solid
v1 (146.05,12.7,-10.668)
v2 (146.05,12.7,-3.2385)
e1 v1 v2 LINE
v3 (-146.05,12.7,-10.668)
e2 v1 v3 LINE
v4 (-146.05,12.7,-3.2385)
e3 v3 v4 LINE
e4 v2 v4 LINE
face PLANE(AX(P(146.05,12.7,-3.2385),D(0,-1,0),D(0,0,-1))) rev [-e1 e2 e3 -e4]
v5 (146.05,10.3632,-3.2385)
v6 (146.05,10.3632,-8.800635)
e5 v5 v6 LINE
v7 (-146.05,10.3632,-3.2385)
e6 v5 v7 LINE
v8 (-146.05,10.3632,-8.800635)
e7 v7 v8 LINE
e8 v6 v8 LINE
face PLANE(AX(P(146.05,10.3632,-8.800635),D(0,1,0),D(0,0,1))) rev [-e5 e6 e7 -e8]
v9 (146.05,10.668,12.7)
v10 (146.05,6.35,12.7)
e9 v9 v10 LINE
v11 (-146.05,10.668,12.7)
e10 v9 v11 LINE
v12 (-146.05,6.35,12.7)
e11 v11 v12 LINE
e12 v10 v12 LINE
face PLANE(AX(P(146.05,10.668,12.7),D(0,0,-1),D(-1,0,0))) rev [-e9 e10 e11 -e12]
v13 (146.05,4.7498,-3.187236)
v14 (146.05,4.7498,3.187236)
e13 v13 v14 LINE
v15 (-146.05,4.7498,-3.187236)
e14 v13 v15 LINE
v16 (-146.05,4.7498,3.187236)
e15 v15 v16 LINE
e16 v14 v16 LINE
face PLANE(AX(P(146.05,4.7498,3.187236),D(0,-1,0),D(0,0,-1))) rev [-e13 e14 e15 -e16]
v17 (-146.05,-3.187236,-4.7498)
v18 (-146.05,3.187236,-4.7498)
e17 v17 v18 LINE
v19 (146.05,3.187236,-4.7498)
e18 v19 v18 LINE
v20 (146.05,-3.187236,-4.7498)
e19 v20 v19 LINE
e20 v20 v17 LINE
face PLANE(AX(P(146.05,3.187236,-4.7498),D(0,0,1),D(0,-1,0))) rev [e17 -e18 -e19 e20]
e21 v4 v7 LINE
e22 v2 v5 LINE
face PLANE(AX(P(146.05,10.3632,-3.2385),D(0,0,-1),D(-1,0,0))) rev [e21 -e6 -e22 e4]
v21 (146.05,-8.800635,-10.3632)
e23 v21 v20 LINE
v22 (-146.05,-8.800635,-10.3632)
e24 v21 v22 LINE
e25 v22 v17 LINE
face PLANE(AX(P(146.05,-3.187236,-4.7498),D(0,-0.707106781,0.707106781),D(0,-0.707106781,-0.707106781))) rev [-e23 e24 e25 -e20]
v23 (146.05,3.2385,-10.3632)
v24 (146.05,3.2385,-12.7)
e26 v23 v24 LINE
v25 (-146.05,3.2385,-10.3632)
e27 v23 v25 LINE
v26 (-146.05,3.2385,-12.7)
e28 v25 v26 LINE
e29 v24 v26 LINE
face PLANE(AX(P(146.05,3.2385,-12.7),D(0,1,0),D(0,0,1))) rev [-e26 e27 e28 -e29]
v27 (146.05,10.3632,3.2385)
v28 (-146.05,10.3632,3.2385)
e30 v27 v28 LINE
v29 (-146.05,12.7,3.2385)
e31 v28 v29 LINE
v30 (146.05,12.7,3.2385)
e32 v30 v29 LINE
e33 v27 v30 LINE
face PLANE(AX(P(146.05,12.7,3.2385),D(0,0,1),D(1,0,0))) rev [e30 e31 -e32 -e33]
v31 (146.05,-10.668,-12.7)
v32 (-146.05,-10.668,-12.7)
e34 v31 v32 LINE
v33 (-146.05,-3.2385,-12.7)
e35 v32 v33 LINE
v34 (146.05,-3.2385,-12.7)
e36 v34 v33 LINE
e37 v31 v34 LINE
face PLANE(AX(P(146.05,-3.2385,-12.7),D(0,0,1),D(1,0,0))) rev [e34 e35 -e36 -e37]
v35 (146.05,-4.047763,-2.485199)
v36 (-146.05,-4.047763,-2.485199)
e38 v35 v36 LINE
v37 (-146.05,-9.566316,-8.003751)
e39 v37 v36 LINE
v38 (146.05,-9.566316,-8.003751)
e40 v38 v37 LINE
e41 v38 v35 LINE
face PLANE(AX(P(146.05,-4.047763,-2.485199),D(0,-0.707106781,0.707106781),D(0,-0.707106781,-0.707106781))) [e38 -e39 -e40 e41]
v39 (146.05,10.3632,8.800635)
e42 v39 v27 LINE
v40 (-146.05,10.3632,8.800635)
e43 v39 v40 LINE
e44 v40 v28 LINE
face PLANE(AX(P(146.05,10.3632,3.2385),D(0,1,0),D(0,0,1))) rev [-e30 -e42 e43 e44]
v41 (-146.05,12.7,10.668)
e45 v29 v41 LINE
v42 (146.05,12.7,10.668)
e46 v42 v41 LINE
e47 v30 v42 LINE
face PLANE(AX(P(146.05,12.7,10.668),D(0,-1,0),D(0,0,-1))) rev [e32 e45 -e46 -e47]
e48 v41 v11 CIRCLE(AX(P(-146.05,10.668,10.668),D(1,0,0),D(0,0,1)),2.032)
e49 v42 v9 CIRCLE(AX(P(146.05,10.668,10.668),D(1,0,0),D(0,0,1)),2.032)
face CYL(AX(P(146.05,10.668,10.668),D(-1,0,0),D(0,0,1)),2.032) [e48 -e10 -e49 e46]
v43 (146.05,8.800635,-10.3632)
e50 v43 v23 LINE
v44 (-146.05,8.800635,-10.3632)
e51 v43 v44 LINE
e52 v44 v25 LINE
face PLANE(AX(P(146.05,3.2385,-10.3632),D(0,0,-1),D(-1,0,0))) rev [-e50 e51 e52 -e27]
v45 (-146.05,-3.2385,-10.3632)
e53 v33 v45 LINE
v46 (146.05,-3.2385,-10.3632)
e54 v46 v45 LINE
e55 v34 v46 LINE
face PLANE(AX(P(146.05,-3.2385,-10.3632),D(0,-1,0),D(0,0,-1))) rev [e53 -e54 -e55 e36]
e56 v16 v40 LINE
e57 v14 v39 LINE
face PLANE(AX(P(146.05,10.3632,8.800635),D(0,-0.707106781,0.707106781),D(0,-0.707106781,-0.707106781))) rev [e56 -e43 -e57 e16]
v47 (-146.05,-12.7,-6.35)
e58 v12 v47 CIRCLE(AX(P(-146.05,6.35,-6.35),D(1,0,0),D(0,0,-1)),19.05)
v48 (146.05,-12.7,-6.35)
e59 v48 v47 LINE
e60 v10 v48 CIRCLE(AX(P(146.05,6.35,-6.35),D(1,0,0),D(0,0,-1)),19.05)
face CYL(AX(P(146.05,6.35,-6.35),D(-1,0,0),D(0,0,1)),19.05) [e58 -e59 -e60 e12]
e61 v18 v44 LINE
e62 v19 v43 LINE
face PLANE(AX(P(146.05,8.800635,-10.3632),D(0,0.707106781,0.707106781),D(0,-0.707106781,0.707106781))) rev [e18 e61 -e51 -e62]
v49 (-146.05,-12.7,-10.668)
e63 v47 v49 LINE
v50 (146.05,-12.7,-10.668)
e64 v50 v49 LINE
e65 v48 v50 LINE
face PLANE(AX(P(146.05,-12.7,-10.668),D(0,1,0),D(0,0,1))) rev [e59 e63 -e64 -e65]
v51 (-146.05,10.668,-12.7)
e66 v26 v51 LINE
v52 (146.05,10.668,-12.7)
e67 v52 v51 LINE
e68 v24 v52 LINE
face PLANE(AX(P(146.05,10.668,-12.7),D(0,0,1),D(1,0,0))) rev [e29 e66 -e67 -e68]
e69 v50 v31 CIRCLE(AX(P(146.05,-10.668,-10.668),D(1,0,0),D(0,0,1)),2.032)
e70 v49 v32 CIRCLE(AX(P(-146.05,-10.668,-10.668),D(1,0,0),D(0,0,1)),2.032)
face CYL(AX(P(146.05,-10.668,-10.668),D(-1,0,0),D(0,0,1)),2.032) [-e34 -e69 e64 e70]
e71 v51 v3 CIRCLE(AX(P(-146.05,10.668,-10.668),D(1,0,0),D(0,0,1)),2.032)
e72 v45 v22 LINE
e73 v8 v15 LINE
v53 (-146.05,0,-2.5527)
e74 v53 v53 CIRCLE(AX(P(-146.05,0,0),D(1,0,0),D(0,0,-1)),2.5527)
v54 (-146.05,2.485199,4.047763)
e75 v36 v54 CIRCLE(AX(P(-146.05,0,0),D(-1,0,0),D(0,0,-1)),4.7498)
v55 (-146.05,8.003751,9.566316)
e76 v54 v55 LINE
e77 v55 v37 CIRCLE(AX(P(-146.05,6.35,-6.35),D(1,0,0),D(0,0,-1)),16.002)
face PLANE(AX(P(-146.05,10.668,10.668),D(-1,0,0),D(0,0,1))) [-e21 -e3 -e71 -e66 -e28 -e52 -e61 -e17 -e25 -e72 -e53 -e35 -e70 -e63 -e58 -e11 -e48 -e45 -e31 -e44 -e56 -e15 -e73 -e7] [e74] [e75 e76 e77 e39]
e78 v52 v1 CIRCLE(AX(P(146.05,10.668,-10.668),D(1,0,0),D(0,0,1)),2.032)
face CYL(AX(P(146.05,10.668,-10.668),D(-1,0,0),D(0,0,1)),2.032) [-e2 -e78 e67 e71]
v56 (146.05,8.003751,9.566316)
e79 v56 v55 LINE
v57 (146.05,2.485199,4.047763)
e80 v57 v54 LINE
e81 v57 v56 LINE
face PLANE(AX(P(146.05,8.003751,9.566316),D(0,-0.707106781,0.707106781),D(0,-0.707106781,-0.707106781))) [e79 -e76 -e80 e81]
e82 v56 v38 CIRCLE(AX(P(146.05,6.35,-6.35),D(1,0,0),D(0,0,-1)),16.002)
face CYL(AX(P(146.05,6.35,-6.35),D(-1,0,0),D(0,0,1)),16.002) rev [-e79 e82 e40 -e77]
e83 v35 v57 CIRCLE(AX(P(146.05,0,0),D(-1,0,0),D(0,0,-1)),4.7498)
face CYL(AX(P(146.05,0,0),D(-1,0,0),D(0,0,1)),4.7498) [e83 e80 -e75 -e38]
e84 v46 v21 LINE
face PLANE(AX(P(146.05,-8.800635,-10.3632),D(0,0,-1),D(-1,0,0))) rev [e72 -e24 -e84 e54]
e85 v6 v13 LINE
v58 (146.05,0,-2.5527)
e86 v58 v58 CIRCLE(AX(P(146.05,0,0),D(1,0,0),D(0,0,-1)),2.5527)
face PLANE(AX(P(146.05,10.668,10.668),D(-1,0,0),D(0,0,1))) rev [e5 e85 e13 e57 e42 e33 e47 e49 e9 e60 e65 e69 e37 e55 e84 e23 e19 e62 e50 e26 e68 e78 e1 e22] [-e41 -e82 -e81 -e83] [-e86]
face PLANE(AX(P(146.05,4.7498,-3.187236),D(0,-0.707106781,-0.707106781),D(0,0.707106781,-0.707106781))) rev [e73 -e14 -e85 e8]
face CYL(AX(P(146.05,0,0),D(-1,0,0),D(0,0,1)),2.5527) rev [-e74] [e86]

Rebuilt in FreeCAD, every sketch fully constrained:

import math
import FreeCAD as App
import Part
import Sketcher

V = App.Vector
Q = App.Units.Quantity

doc = App.newDocument("Part")
body = doc.addObject("PartDesign::Body", "Body")

# Sketch on YZ plane
sketch1 = body.newObject("Sketcher::SketchObject", "Sketch")
sketch1.AttachmentSupport = (doc.getObject("YZ_Plane"), [""])
sketch1.MapMode = "FlatFace"
sketch1.addGeometry([
    Part.LineSegment(V(12.7, 3.2385, 0), V(12.7, 10.668, 0)),  # 0
    Part.ArcOfCircle(Part.Circle(V(10.668, 10.668, 0), V(0, 0, 1), 2.032), math.radians(0), math.radians(90)),  # 1
    Part.LineSegment(V(10.668, 12.7, 0), V(6.35, 12.7, 0)),  # 2
    Part.ArcOfCircle(Part.Circle(V(6.35, -6.35, 0), V(0, 0, 1), 19.05), math.radians(90), math.radians(180)),  # 3
    Part.LineSegment(V(-12.7, -6.35, 0), V(-12.7, -10.668, 0)),  # 4
    Part.ArcOfCircle(Part.Circle(V(-10.668, -10.668, 0), V(0, 0, 1), 2.032), math.radians(-180), math.radians(-90)),  # 5
    Part.LineSegment(V(-10.668, -12.7, 0), V(-3.2385, -12.7, 0)),  # 6
    Part.LineSegment(V(-3.2385, -12.7, 0), V(-3.2385, -10.3632, 0)),  # 7
    Part.LineSegment(V(-3.2385, -10.3632, 0), V(-8.800635, -10.3632, 0)),  # 8
    Part.LineSegment(V(-8.800635, -10.3632, 0), V(-3.187236, -4.7498, 0)),  # 9
    Part.LineSegment(V(-3.187236, -4.7498, 0), V(3.187236, -4.7498, 0)),  # 10
    Part.LineSegment(V(3.187236, -4.7498, 0), V(8.800635, -10.3632, 0)),  # 11
    Part.LineSegment(V(8.800635, -10.3632, 0), V(3.2385, -10.3632, 0)),  # 12
    Part.LineSegment(V(3.2385, -10.3632, 0), V(3.2385, -12.7, 0)),  # 13
    Part.LineSegment(V(3.2385, -12.7, 0), V(10.668, -12.7, 0)),  # 14
    Part.ArcOfCircle(Part.Circle(V(10.668, -10.668, 0), V(0, 0, 1), 2.032), math.radians(-90), math.radians(0)),  # 15
    Part.LineSegment(V(12.7, -10.668, 0), V(12.7, -3.2385, 0)),  # 16
    Part.LineSegment(V(12.7, -3.2385, 0), V(10.3632, -3.2385, 0)),  # 17
    Part.LineSegment(V(10.3632, -3.2385, 0), V(10.3632, -8.800635, 0)),  # 18
    Part.LineSegment(V(10.3632, -8.800635, 0), V(4.7498, -3.187236, 0)),  # 19
    Part.LineSegment(V(4.7498, -3.187236, 0), V(4.7498, 3.187236, 0)),  # 20
    Part.LineSegment(V(4.7498, 3.187236, 0), V(10.3632, 8.800635, 0)),  # 21
    Part.LineSegment(V(10.3632, 8.800635, 0), V(10.3632, 3.2385, 0)),  # 22
    Part.LineSegment(V(10.3632, 3.2385, 0), V(12.7, 3.2385, 0)),  # 23
    Part.Circle(V(0, 0, 0), V(0, 0, 1), 2.5527),  # 24
    Part.LineSegment(V(-4.047763, -2.485199, 0), V(-9.566316, -8.003751, 0)),  # 25
    Part.ArcOfCircle(Part.Circle(V(6.35, -6.35, 0), V(0, 0, 1), 16.002), math.radians(84.068088), math.radians(185.931912)),  # 26
    Part.LineSegment(V(8.003751, 9.566316, 0), V(2.485199, 4.047763, 0)),  # 27
    Part.ArcOfCircle(Part.Circle(V(0, 0, 0), V(0, 0, 1), 4.7498), math.radians(58.45139), math.radians(211.54861)),  # 28
], False)
sketch1.addConstraint([
    Sketcher.Constraint("Tangent", 0, 2, 1, 1),
    Sketcher.Constraint("Tangent", 1, 2, 2, 1),
    Sketcher.Constraint("Tangent", 2, 2, 3, 1),
    Sketcher.Constraint("Tangent", 3, 2, 4, 1),
    Sketcher.Constraint("Tangent", 4, 2, 5, 1),
    Sketcher.Constraint("Tangent", 5, 2, 6, 1),
    Sketcher.Constraint("Coincident", 6, 2, 7, 1),
    Sketcher.Constraint("Coincident", 7, 2, 8, 1),
    Sketcher.Constraint("Coincident", 8, 2, 9, 1),
    Sketcher.Constraint("Coincident", 9, 2, 10, 1),
    Sketcher.Constraint("Coincident", 10, 2, 11, 1),
    Sketcher.Constraint("Coincident", 11, 2, 12, 1),
    Sketcher.Constraint("Coincident", 12, 2, 13, 1),
    Sketcher.Constraint("Coincident", 13, 2, 14, 1),
    Sketcher.Constraint("Tangent", 14, 2, 15, 1),
    Sketcher.Constraint("Tangent", 15, 2, 16, 1),
    Sketcher.Constraint("Coincident", 16, 2, 17, 1),
    Sketcher.Constraint("Coincident", 17, 2, 18, 1),
    Sketcher.Constraint("Coincident", 18, 2, 19, 1),
    Sketcher.Constraint("Coincident", 19, 2, 20, 1),
    Sketcher.Constraint("Coincident", 20, 2, 21, 1),
    Sketcher.Constraint("Coincident", 21, 2, 22, 1),
    Sketcher.Constraint("Coincident", 22, 2, 23, 1),
    Sketcher.Constraint("Coincident", 23, 2, 0, 1),
    Sketcher.Constraint("Coincident", 25, 2, 26, 2),
    Sketcher.Constraint("Coincident", 26, 1, 27, 1),
    Sketcher.Constraint("Coincident", 27, 2, 28, 1),
    Sketcher.Constraint("Coincident", 28, 2, 25, 1),
    Sketcher.Constraint("Vertical", 0),
    Sketcher.Constraint("Horizontal", 2),
    Sketcher.Constraint("Vertical", 4),
    Sketcher.Constraint("Horizontal", 6),
    Sketcher.Constraint("Vertical", 7),
    Sketcher.Constraint("Horizontal", 8),
    Sketcher.Constraint("Horizontal", 10),
    Sketcher.Constraint("Horizontal", 12),
    Sketcher.Constraint("Vertical", 13),
    Sketcher.Constraint("Horizontal", 14),
    Sketcher.Constraint("Vertical", 16),
    Sketcher.Constraint("Horizontal", 17),
    Sketcher.Constraint("Vertical", 18),
    Sketcher.Constraint("Vertical", 20),
    Sketcher.Constraint("Vertical", 22),
    Sketcher.Constraint("Horizontal", 23),
    Sketcher.Constraint("Coincident", 24, 3, -1, 1),
    Sketcher.Constraint("Coincident", 28, 3, -1, 1),
    Sketcher.Constraint("Coincident", 26, 3, 3, 3),
    Sketcher.Constraint("Equal", 1, 5),
    Sketcher.Constraint("Equal", 5, 15),
    Sketcher.Constraint("Symmetric", 1, 3, 5, 3, -1, 1),
    Sketcher.Constraint("Symmetric", 5, 3, 15, 3, -2),
    Sketcher.Constraint("Symmetric", 8, 2, 11, 2, -2),
    Sketcher.Constraint("Symmetric", 18, 2, 21, 2, -1),
    Sketcher.Constraint("Perpendicular", 9, 11),
    Sketcher.Constraint("Parallel", 11, 19),
    Sketcher.Constraint("Perpendicular", 19, 21),
    Sketcher.Constraint("Parallel", 21, 25),
    Sketcher.Constraint("Parallel", 25, 27),
    Sketcher.Constraint("Equal", 8, 12),
    Sketcher.Constraint("Equal", 14, 0),
    Sketcher.Constraint("Equal", 2, 4),
    Sketcher.Constraint("Equal", 23, 7),
    Sketcher.Constraint("Equal", 0, 16),
    Sketcher.Constraint("Equal", 12, 18),
    Sketcher.Constraint("Equal", 10, 20),
    Sketcher.Constraint("Equal", 9, 11),
    Sketcher.Constraint("Equal", 25, 27),
    Sketcher.Constraint("Radius", 1, Q("0.08 in")),
    Sketcher.Constraint("Radius", 3, Q("0.75 in")),
    Sketcher.Constraint("Radius", 26, Q("0.63 in")),
    Sketcher.Constraint("Diameter", 24, Q("0.201 in")),
    Sketcher.Constraint("Radius", 28, Q("0.187 in")),
    Sketcher.Constraint("DistanceX", 2, 2, 2, 1, Q("0.17 in")),
    Sketcher.Constraint("DistanceX", 17, 2, 17, 1, Q("0.092 in")),
    Sketcher.Constraint("DistanceX", 6, 1, 6, 2, Q("0.2925 in")),
    Sketcher.Constraint("DistanceY", 9, 2, -1, 1, Q("0.187 in")),
    Sketcher.Constraint("DistanceX", 10, 1, 10, 2, Q("6.374471 mm")),
    Sketcher.Constraint("DistanceX", -1, 1, 27, 2, Q("2.485199 mm")),
])
pad1 = body.newObject("PartDesign::Pad", "Pad")
pad1.Profile = sketch1
pad1.Type = "TwoLengths"
pad1.Length = Q("5.75 in")
pad1.Length2 = Q("5.75 in")

doc.recompute()
